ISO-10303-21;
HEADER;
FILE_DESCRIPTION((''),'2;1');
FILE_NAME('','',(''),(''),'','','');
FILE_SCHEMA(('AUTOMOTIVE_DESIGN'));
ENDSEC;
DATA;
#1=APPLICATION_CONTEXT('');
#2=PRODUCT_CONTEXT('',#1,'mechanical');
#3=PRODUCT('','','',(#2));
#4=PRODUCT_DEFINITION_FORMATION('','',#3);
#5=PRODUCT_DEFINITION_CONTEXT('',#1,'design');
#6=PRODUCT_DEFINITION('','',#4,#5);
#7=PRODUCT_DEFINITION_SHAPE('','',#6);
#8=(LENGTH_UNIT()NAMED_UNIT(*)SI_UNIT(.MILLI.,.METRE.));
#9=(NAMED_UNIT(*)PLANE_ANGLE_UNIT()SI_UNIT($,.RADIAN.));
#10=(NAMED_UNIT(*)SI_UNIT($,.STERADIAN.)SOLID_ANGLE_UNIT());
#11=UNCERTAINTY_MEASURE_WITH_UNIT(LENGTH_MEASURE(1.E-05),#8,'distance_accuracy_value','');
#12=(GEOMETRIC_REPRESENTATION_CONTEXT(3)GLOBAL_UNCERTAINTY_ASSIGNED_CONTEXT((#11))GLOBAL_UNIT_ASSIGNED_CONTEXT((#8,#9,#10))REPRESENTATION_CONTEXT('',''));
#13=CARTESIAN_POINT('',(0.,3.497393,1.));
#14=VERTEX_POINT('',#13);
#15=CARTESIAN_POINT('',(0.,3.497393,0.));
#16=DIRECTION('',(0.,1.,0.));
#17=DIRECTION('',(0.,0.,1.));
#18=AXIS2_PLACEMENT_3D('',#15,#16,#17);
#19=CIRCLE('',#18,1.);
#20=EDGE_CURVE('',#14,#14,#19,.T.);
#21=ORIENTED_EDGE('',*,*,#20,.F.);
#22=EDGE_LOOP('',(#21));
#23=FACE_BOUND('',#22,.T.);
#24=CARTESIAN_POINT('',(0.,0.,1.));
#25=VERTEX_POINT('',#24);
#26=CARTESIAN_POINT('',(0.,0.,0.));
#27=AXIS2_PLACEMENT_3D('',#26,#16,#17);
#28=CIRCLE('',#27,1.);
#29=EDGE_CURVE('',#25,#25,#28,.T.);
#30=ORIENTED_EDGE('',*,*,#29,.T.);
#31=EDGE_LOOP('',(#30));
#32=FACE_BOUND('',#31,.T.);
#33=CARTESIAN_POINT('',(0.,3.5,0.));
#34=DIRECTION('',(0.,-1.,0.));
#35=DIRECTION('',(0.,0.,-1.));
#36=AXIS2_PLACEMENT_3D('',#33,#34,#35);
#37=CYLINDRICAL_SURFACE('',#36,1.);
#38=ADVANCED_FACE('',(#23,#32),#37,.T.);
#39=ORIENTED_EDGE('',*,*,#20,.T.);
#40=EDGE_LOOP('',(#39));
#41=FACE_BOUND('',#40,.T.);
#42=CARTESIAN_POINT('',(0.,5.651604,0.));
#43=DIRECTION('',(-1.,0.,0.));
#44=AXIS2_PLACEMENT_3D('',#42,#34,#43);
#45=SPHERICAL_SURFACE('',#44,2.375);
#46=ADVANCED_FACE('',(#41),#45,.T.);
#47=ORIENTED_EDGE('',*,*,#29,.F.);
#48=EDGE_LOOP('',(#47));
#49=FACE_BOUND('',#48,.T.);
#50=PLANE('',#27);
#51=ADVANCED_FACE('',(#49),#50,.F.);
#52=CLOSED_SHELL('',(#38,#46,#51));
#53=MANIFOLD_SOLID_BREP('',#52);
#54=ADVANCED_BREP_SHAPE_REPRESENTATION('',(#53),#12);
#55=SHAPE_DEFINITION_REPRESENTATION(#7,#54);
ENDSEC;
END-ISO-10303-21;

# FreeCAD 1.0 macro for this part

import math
import FreeCAD as App
import Part
import Sketcher
Q = App.Units.Quantity

doc = App.newDocument("Part")
body = doc.addObject("PartDesign::Body", "Body")

# Sketch on XZ plane
sketch1 = body.newObject("Sketcher::SketchObject", "Sketch")
sketch1.AttachmentSupport = (doc.getObject("XZ_Plane"), [""])
sketch1.MapMode = "FlatFace"
sketch1.addGeometry(Part.Circle(App.Vector(0, 0, 0), App.Vector(0, 0, 1), 1), False)
sketch1.addConstraint(Sketcher.Constraint("Coincident", 0, 3, -1, 1))
sketch1.addConstraint(Sketcher.Constraint("Diameter", 0, Q("2 mm")))
pad1 = body.newObject("PartDesign::Pad", "Pad")
pad1.Profile = sketch1
pad1.Length = 3.5
pad1.Reversed = True

# Sketch on XY plane
sketch2 = body.newObject("Sketcher::SketchObject", "Sketch001")
sketch2.AttachmentSupport = (doc.getObject("XY_Plane"), [""])
sketch2.MapMode = "FlatFace"
sketch2.addGeometry(Part.LineSegment(App.Vector(0, 3.3, 0), App.Vector(0, 8, 0)), False)
sketch2.addGeometry(Part.ArcOfCircle(Part.Circle(App.Vector(0, 5.7, 0), App.Vector(0, 0, 1), 2.4), math.radians(90), math.radians(270)), False)
sketch2.addConstraint(Sketcher.Constraint("Coincident", 0, 1, 1, 2))
sketch2.addConstraint(Sketcher.Constraint("Coincident", 1, 1, 0, 2))
sketch2.addConstraint(Sketcher.Constraint("Vertical", 0))
sketch2.addConstraint(Sketcher.Constraint("PointOnObject", 1, 3, -2))
sketch2.addConstraint(Sketcher.Constraint("PointOnObject", 0, 1, -2))
sketch2.addConstraint(Sketcher.Constraint("Radius", 1, Q("2.375 mm")))
sketch2.addConstraint(Sketcher.Constraint("DistanceY", -1, 1, 1, 3, Q("5.651604 mm")))
revolution = body.newObject("PartDesign::Revolution", "Revolution")
revolution.Profile = sketch2
revolution.ReferenceAxis = (sketch2, ["V_Axis"])
revolution.Angle = 360

doc.recompute()
